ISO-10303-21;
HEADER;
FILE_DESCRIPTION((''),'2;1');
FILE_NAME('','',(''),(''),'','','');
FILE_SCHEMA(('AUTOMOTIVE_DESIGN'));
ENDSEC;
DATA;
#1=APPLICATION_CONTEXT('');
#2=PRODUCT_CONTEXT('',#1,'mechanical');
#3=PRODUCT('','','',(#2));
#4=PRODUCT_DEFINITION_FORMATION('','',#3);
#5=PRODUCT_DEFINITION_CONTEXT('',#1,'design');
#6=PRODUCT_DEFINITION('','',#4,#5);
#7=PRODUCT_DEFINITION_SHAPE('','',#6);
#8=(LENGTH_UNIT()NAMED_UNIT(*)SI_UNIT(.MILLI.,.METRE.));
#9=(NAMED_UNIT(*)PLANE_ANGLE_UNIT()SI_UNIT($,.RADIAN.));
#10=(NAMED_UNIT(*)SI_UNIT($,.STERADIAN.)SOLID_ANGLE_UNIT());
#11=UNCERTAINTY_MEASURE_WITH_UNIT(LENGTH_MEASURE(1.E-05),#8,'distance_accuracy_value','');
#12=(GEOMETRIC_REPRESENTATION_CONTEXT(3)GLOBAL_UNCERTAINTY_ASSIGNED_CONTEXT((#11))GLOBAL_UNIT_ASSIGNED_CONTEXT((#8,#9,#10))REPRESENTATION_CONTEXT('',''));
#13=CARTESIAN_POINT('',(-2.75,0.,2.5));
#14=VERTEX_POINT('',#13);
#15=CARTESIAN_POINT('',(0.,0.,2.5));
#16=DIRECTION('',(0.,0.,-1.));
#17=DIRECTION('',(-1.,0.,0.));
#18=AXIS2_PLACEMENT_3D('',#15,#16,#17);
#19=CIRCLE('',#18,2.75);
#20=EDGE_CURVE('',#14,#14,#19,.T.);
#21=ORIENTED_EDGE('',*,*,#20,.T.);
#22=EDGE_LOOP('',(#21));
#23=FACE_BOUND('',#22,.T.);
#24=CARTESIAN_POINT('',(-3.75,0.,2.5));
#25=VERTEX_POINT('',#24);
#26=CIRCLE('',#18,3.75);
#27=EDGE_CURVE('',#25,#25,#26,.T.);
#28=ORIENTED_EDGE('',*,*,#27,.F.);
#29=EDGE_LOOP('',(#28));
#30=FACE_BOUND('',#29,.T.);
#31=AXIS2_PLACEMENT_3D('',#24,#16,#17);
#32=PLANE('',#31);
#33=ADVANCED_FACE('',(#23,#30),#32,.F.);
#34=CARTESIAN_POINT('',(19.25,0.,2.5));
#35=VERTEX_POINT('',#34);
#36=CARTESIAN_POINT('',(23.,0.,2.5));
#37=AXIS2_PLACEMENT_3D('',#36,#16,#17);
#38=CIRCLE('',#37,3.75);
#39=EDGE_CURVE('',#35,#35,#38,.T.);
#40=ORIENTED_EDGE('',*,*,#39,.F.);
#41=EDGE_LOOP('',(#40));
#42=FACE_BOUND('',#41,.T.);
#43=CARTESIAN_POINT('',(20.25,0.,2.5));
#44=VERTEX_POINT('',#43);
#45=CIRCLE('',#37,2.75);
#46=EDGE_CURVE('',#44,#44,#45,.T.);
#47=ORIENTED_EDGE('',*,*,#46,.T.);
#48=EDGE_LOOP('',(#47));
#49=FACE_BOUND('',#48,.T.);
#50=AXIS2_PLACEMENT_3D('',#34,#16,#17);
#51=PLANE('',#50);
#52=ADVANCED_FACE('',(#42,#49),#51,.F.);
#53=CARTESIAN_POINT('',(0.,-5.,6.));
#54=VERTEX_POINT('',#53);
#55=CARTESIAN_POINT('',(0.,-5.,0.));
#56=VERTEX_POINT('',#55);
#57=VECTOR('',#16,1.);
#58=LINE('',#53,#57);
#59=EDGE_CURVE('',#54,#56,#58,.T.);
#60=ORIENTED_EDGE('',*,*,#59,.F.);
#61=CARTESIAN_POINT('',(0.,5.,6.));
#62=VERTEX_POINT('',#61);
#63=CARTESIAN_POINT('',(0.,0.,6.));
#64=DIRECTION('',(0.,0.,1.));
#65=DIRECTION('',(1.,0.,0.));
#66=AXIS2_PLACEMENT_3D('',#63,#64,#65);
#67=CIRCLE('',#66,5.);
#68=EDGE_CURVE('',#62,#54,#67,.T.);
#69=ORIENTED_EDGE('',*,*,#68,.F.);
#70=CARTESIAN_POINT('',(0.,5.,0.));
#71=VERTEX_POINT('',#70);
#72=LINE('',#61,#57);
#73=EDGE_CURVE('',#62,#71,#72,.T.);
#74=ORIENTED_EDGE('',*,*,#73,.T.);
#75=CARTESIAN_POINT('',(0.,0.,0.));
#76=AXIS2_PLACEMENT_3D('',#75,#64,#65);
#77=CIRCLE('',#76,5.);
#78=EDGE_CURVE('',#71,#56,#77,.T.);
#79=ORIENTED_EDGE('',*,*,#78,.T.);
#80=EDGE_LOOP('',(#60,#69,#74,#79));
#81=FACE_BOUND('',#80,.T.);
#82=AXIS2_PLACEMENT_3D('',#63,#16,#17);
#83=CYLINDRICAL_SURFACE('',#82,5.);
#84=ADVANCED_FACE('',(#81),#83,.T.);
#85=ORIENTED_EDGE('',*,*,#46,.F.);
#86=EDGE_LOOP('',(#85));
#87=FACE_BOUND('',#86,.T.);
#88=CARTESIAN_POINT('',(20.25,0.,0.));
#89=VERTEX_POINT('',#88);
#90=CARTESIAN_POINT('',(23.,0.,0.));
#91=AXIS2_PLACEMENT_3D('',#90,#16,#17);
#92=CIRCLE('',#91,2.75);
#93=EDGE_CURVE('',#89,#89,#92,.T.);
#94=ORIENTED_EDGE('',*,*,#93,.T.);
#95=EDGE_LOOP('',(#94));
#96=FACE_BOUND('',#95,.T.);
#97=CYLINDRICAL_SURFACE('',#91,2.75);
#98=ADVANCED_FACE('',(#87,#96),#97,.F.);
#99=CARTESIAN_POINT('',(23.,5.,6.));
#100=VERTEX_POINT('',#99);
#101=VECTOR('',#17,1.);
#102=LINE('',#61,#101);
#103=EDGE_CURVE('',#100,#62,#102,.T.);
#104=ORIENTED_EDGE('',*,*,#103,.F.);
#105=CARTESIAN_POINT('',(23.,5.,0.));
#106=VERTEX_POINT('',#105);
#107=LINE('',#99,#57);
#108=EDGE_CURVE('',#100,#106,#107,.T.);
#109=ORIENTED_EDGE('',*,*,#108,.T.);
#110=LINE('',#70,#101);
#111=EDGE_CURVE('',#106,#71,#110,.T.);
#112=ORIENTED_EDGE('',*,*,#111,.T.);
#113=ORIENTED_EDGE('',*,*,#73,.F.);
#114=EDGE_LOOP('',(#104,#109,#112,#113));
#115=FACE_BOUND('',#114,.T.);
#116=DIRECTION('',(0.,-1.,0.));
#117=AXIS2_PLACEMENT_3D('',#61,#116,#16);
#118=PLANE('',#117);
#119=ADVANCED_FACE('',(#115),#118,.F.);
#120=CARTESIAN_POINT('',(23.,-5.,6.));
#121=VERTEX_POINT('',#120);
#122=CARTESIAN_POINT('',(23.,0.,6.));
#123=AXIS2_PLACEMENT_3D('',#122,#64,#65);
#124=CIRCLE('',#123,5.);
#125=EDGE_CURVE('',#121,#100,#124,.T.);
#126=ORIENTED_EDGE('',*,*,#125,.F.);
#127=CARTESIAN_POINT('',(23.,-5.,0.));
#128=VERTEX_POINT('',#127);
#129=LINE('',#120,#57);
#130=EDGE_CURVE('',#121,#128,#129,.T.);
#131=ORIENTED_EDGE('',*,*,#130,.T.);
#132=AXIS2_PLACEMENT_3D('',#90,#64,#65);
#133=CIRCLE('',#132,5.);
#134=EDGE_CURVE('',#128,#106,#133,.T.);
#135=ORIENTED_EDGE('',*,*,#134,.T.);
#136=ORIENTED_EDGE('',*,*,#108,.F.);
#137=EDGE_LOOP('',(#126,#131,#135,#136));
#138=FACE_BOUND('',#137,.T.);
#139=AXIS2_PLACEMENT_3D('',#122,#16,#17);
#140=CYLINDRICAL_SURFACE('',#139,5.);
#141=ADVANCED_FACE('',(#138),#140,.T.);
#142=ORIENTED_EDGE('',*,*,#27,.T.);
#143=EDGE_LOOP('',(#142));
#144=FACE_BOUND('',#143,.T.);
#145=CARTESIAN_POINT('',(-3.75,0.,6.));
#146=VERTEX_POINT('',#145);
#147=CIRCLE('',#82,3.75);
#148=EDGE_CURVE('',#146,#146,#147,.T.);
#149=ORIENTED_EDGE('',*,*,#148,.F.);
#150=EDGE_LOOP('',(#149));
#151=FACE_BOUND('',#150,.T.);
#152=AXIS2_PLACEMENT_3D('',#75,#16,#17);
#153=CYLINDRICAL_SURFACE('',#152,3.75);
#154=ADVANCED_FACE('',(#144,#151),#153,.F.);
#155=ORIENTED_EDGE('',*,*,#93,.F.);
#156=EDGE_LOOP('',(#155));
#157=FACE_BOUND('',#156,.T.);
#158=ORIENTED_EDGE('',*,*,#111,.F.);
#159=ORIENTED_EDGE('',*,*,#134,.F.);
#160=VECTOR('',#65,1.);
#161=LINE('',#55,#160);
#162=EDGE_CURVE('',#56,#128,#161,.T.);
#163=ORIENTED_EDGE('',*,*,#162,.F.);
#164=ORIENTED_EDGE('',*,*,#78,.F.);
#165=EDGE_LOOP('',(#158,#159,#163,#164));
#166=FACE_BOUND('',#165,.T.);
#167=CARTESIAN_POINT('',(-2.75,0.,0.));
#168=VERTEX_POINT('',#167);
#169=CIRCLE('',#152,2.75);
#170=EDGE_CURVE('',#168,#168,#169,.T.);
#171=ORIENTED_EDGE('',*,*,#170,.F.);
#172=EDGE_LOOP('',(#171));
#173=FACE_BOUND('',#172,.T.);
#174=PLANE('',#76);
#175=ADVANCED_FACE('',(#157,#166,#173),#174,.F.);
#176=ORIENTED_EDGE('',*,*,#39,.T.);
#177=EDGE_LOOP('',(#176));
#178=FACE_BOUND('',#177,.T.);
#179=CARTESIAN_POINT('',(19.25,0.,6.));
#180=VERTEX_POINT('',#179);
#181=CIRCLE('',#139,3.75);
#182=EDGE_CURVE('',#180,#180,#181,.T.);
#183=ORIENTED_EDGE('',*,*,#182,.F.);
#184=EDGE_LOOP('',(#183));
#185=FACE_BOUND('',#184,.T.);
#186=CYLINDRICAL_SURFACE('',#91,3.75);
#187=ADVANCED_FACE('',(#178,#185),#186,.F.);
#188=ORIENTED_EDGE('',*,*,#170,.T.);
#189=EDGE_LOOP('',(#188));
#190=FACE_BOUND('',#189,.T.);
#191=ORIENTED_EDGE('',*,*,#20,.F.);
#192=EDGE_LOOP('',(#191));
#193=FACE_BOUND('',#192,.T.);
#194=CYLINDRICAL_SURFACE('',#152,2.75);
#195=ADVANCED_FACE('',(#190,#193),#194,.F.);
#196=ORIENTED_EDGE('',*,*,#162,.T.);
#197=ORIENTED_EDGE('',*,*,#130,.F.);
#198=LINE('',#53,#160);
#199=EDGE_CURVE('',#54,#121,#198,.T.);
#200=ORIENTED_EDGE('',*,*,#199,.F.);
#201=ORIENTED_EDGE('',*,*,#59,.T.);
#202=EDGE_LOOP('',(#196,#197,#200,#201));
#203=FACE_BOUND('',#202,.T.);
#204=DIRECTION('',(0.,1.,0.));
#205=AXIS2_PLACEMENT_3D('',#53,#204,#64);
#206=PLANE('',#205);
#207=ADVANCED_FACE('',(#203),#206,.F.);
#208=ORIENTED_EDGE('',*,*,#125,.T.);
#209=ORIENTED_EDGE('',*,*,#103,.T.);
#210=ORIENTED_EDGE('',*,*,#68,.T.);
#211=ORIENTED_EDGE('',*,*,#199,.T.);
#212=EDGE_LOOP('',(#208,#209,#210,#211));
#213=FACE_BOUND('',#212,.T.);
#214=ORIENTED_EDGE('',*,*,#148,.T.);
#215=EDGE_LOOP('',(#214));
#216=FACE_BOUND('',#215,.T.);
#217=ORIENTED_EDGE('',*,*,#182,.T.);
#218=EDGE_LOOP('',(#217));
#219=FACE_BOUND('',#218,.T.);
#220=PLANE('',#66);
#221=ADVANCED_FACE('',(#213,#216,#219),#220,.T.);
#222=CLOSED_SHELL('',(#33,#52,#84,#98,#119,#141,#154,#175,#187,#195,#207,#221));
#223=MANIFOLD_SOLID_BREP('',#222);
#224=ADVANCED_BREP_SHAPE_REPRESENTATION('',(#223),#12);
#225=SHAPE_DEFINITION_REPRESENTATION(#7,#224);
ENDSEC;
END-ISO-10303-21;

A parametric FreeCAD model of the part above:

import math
import FreeCAD as App
import Part
import Sketcher
from FreeCAD import Vector


def add_polygon(sketch, points):
    """Adds a closed chain of lines whose ends are joined by coincident constraints."""
    first, n = sketch.GeometryCount, len(points)
    for a, b in zip(points, points[1:] + points[:1]):
        sketch.addGeometry(Part.LineSegment(App.Vector(*a, 0), App.Vector(*b, 0)), False)
    for i in range(n):
        sketch.addConstraint(Sketcher.Constraint("Coincident", first + i, 2, first + (i + 1) % n, 1))

doc = App.newDocument("Part")
params = doc.addObject("Spreadsheet::Sheet", "Params")
for row, (alias, value) in enumerate([
    ("sketch1_radius", "5 mm"),
    ("sketch1_width", "23 mm"),
    ("pad1_length", "6 mm"),
    ("sketch2_width", "1 mm"),
    ("sketch2_height", "6 mm"),
    ("sketch2_height2", "2.5 mm"),
    ("sketch2_width2", "3.75 mm"),
    ("groove_angle", "360 deg"),
    ("sketch3_width", "1 mm"),
    ("sketch3_height", "6 mm"),
    ("sketch3_height2", "2.5 mm"),
    ("sketch3_width2", "3.75 mm"),
    ("groove2_angle", "360 deg"),
], start=1):
    params.set(f"A{row}", alias)
    params.set(f"B{row}", "=" + value)
    params.setAlias(f"B{row}", alias)

body = doc.addObject("PartDesign::Body", "Body")

# Sketch on XY plane
sketch1 = body.newObject("Sketcher::SketchObject", "Sketch")
sketch1.AttachmentSupport = (doc.getObject("XY_Plane"), [""])
sketch1.MapMode = "FlatFace"
sketch1.addGeometry([
    Part.LineSegment(Vector(23, 5, 0), Vector(0, 5, 0)),
    Part.ArcOfCircle(Part.Circle(Vector(0, 0, 0), Vector(0, 0, 1), 5), math.radians(90), math.radians(270)),
    Part.LineSegment(Vector(0, -5, 0), Vector(23, -5, 0)),
    Part.ArcOfCircle(Part.Circle(Vector(23, 0, 0), Vector(0, 0, 1), 5), math.radians(-90), math.radians(90)),
], False)
sketch1.addConstraint([
    Sketcher.Constraint("Tangent", 0, 2, 1, 1),
    Sketcher.Constraint("Tangent", 1, 2, 2, 1),
    Sketcher.Constraint("Tangent", 2, 2, 3, 1),
    Sketcher.Constraint("Tangent", 3, 2, 0, 1),
    Sketcher.Constraint("Horizontal", 0),
    Sketcher.Constraint("Horizontal", 2),
    Sketcher.Constraint("Coincident", 1, 3, -1, 1),
    Sketcher.Constraint("Radius", 1, 5.0),
    Sketcher.Constraint("DistanceX", 0, 2, 0, 1, 23.0),
])
sketch1.setExpression("Constraints[7]", "Params.sketch1_radius")
sketch1.setExpression("Constraints[8]", "Params.sketch1_width")
pad1 = body.newObject("PartDesign::Pad", "Pad")
pad1.Profile = sketch1
pad1.setExpression("Length", "Params.pad1_length")

# Sketch on XZ plane
sketch2 = body.newObject("Sketcher::SketchObject", "Sketch001")
sketch2.AttachmentSupport = (doc.getObject("XZ_Plane"), [""])
sketch2.MapMode = "FlatFace"
add_polygon(sketch2, [(-3.8, 6), (0, 6), (0, 0), (-2.8, 0), (-2.8, 2.5), (-3.8, 2.5)])  # lines 0-5
sketch2.addConstraint([
    Sketcher.Constraint("Horizontal", 0),
    Sketcher.Constraint("Vertical", 1),
    Sketcher.Constraint("Horizontal", 2),
    Sketcher.Constraint("Vertical", 3),
    Sketcher.Constraint("Horizontal", 4),
    Sketcher.Constraint("Vertical", 5),
    Sketcher.Constraint("Coincident", 1, 2, -1, 1),
    Sketcher.Constraint("DistanceX", 4, 2, 4, 1, 1.0),
    Sketcher.Constraint("DistanceY", 1, 2, 1, 1, 6.0),
    Sketcher.Constraint("DistanceY", 3, 1, 3, 2, 2.5),
    Sketcher.Constraint("DistanceX", 0, 1, 0, 2, 3.75),
])
sketch2.setExpression("Constraints[13]", "Params.sketch2_width")
sketch2.setExpression("Constraints[14]", "Params.sketch2_height")
sketch2.setExpression("Constraints[15]", "Params.sketch2_height2")
sketch2.setExpression("Constraints[16]", "Params.sketch2_width2")
groove = body.newObject("PartDesign::Groove", "Groove")
groove.Profile = sketch2
groove.ReferenceAxis = (sketch2, ["V_Axis"])
groove.setExpression("Angle", "Params.groove_angle")

# Sketch on XZ plane
sketch3 = body.newObject("Sketcher::SketchObject", "Sketch002")
sketch3.AttachmentSupport = (doc.getObject("XZ_Plane"), [""])
sketch3.MapMode = "FlatFace"
add_polygon(sketch3, [(19.2, 6), (23, 6), (23, 0), (20.2, 0), (20.2, 2.5), (19.2, 2.5)])  # lines 0-5
sketch3.addGeometry(Part.LineSegment(Vector(23, 0, 0), Vector(23, 6, 0)), True)  # axis
sketch3.addConstraint([
    Sketcher.Constraint("Horizontal", 0),
    Sketcher.Constraint("Vertical", 1),
    Sketcher.Constraint("Horizontal", 2),
    Sketcher.Constraint("Vertical", 3),
    Sketcher.Constraint("Horizontal", 4),
    Sketcher.Constraint("Vertical", 5),
    Sketcher.Constraint("Vertical", 6),
    Sketcher.Constraint("Coincident", 6, 1, 1, 2),
    Sketcher.Constraint("PointOnObject", 1, 2, -1),
    Sketcher.Constraint("Horizontal", 5, 2, 6, 2),
    Sketcher.Constraint("DistanceX", 4, 2, 4, 1, 1.0),
    Sketcher.Constraint("DistanceY", 1, 2, 1, 1, 6.0),
    Sketcher.Constraint("DistanceY", 3, 1, 3, 2, 2.5),
    Sketcher.Constraint("DistanceX", -1, 1, 0, 2, 23.0),
    Sketcher.Constraint("DistanceX", 0, 1, 0, 2, 3.75),
])
sketch3.setExpression("Constraints[16]", "Params.sketch3_width")
sketch3.setExpression("Constraints[17]", "Params.sketch3_height")
sketch3.setExpression("Constraints[18]", "Params.sketch3_height2")
sketch3.setExpression("Constraints[20]", "Params.sketch3_width2")
groove2 = body.newObject("PartDesign::Groove", "Groove001")
groove2.Profile = sketch3
groove2.ReferenceAxis = (sketch3, ["Axis0"])
groove2.setExpression("Angle", "Params.groove2_angle")

doc.recompute()
